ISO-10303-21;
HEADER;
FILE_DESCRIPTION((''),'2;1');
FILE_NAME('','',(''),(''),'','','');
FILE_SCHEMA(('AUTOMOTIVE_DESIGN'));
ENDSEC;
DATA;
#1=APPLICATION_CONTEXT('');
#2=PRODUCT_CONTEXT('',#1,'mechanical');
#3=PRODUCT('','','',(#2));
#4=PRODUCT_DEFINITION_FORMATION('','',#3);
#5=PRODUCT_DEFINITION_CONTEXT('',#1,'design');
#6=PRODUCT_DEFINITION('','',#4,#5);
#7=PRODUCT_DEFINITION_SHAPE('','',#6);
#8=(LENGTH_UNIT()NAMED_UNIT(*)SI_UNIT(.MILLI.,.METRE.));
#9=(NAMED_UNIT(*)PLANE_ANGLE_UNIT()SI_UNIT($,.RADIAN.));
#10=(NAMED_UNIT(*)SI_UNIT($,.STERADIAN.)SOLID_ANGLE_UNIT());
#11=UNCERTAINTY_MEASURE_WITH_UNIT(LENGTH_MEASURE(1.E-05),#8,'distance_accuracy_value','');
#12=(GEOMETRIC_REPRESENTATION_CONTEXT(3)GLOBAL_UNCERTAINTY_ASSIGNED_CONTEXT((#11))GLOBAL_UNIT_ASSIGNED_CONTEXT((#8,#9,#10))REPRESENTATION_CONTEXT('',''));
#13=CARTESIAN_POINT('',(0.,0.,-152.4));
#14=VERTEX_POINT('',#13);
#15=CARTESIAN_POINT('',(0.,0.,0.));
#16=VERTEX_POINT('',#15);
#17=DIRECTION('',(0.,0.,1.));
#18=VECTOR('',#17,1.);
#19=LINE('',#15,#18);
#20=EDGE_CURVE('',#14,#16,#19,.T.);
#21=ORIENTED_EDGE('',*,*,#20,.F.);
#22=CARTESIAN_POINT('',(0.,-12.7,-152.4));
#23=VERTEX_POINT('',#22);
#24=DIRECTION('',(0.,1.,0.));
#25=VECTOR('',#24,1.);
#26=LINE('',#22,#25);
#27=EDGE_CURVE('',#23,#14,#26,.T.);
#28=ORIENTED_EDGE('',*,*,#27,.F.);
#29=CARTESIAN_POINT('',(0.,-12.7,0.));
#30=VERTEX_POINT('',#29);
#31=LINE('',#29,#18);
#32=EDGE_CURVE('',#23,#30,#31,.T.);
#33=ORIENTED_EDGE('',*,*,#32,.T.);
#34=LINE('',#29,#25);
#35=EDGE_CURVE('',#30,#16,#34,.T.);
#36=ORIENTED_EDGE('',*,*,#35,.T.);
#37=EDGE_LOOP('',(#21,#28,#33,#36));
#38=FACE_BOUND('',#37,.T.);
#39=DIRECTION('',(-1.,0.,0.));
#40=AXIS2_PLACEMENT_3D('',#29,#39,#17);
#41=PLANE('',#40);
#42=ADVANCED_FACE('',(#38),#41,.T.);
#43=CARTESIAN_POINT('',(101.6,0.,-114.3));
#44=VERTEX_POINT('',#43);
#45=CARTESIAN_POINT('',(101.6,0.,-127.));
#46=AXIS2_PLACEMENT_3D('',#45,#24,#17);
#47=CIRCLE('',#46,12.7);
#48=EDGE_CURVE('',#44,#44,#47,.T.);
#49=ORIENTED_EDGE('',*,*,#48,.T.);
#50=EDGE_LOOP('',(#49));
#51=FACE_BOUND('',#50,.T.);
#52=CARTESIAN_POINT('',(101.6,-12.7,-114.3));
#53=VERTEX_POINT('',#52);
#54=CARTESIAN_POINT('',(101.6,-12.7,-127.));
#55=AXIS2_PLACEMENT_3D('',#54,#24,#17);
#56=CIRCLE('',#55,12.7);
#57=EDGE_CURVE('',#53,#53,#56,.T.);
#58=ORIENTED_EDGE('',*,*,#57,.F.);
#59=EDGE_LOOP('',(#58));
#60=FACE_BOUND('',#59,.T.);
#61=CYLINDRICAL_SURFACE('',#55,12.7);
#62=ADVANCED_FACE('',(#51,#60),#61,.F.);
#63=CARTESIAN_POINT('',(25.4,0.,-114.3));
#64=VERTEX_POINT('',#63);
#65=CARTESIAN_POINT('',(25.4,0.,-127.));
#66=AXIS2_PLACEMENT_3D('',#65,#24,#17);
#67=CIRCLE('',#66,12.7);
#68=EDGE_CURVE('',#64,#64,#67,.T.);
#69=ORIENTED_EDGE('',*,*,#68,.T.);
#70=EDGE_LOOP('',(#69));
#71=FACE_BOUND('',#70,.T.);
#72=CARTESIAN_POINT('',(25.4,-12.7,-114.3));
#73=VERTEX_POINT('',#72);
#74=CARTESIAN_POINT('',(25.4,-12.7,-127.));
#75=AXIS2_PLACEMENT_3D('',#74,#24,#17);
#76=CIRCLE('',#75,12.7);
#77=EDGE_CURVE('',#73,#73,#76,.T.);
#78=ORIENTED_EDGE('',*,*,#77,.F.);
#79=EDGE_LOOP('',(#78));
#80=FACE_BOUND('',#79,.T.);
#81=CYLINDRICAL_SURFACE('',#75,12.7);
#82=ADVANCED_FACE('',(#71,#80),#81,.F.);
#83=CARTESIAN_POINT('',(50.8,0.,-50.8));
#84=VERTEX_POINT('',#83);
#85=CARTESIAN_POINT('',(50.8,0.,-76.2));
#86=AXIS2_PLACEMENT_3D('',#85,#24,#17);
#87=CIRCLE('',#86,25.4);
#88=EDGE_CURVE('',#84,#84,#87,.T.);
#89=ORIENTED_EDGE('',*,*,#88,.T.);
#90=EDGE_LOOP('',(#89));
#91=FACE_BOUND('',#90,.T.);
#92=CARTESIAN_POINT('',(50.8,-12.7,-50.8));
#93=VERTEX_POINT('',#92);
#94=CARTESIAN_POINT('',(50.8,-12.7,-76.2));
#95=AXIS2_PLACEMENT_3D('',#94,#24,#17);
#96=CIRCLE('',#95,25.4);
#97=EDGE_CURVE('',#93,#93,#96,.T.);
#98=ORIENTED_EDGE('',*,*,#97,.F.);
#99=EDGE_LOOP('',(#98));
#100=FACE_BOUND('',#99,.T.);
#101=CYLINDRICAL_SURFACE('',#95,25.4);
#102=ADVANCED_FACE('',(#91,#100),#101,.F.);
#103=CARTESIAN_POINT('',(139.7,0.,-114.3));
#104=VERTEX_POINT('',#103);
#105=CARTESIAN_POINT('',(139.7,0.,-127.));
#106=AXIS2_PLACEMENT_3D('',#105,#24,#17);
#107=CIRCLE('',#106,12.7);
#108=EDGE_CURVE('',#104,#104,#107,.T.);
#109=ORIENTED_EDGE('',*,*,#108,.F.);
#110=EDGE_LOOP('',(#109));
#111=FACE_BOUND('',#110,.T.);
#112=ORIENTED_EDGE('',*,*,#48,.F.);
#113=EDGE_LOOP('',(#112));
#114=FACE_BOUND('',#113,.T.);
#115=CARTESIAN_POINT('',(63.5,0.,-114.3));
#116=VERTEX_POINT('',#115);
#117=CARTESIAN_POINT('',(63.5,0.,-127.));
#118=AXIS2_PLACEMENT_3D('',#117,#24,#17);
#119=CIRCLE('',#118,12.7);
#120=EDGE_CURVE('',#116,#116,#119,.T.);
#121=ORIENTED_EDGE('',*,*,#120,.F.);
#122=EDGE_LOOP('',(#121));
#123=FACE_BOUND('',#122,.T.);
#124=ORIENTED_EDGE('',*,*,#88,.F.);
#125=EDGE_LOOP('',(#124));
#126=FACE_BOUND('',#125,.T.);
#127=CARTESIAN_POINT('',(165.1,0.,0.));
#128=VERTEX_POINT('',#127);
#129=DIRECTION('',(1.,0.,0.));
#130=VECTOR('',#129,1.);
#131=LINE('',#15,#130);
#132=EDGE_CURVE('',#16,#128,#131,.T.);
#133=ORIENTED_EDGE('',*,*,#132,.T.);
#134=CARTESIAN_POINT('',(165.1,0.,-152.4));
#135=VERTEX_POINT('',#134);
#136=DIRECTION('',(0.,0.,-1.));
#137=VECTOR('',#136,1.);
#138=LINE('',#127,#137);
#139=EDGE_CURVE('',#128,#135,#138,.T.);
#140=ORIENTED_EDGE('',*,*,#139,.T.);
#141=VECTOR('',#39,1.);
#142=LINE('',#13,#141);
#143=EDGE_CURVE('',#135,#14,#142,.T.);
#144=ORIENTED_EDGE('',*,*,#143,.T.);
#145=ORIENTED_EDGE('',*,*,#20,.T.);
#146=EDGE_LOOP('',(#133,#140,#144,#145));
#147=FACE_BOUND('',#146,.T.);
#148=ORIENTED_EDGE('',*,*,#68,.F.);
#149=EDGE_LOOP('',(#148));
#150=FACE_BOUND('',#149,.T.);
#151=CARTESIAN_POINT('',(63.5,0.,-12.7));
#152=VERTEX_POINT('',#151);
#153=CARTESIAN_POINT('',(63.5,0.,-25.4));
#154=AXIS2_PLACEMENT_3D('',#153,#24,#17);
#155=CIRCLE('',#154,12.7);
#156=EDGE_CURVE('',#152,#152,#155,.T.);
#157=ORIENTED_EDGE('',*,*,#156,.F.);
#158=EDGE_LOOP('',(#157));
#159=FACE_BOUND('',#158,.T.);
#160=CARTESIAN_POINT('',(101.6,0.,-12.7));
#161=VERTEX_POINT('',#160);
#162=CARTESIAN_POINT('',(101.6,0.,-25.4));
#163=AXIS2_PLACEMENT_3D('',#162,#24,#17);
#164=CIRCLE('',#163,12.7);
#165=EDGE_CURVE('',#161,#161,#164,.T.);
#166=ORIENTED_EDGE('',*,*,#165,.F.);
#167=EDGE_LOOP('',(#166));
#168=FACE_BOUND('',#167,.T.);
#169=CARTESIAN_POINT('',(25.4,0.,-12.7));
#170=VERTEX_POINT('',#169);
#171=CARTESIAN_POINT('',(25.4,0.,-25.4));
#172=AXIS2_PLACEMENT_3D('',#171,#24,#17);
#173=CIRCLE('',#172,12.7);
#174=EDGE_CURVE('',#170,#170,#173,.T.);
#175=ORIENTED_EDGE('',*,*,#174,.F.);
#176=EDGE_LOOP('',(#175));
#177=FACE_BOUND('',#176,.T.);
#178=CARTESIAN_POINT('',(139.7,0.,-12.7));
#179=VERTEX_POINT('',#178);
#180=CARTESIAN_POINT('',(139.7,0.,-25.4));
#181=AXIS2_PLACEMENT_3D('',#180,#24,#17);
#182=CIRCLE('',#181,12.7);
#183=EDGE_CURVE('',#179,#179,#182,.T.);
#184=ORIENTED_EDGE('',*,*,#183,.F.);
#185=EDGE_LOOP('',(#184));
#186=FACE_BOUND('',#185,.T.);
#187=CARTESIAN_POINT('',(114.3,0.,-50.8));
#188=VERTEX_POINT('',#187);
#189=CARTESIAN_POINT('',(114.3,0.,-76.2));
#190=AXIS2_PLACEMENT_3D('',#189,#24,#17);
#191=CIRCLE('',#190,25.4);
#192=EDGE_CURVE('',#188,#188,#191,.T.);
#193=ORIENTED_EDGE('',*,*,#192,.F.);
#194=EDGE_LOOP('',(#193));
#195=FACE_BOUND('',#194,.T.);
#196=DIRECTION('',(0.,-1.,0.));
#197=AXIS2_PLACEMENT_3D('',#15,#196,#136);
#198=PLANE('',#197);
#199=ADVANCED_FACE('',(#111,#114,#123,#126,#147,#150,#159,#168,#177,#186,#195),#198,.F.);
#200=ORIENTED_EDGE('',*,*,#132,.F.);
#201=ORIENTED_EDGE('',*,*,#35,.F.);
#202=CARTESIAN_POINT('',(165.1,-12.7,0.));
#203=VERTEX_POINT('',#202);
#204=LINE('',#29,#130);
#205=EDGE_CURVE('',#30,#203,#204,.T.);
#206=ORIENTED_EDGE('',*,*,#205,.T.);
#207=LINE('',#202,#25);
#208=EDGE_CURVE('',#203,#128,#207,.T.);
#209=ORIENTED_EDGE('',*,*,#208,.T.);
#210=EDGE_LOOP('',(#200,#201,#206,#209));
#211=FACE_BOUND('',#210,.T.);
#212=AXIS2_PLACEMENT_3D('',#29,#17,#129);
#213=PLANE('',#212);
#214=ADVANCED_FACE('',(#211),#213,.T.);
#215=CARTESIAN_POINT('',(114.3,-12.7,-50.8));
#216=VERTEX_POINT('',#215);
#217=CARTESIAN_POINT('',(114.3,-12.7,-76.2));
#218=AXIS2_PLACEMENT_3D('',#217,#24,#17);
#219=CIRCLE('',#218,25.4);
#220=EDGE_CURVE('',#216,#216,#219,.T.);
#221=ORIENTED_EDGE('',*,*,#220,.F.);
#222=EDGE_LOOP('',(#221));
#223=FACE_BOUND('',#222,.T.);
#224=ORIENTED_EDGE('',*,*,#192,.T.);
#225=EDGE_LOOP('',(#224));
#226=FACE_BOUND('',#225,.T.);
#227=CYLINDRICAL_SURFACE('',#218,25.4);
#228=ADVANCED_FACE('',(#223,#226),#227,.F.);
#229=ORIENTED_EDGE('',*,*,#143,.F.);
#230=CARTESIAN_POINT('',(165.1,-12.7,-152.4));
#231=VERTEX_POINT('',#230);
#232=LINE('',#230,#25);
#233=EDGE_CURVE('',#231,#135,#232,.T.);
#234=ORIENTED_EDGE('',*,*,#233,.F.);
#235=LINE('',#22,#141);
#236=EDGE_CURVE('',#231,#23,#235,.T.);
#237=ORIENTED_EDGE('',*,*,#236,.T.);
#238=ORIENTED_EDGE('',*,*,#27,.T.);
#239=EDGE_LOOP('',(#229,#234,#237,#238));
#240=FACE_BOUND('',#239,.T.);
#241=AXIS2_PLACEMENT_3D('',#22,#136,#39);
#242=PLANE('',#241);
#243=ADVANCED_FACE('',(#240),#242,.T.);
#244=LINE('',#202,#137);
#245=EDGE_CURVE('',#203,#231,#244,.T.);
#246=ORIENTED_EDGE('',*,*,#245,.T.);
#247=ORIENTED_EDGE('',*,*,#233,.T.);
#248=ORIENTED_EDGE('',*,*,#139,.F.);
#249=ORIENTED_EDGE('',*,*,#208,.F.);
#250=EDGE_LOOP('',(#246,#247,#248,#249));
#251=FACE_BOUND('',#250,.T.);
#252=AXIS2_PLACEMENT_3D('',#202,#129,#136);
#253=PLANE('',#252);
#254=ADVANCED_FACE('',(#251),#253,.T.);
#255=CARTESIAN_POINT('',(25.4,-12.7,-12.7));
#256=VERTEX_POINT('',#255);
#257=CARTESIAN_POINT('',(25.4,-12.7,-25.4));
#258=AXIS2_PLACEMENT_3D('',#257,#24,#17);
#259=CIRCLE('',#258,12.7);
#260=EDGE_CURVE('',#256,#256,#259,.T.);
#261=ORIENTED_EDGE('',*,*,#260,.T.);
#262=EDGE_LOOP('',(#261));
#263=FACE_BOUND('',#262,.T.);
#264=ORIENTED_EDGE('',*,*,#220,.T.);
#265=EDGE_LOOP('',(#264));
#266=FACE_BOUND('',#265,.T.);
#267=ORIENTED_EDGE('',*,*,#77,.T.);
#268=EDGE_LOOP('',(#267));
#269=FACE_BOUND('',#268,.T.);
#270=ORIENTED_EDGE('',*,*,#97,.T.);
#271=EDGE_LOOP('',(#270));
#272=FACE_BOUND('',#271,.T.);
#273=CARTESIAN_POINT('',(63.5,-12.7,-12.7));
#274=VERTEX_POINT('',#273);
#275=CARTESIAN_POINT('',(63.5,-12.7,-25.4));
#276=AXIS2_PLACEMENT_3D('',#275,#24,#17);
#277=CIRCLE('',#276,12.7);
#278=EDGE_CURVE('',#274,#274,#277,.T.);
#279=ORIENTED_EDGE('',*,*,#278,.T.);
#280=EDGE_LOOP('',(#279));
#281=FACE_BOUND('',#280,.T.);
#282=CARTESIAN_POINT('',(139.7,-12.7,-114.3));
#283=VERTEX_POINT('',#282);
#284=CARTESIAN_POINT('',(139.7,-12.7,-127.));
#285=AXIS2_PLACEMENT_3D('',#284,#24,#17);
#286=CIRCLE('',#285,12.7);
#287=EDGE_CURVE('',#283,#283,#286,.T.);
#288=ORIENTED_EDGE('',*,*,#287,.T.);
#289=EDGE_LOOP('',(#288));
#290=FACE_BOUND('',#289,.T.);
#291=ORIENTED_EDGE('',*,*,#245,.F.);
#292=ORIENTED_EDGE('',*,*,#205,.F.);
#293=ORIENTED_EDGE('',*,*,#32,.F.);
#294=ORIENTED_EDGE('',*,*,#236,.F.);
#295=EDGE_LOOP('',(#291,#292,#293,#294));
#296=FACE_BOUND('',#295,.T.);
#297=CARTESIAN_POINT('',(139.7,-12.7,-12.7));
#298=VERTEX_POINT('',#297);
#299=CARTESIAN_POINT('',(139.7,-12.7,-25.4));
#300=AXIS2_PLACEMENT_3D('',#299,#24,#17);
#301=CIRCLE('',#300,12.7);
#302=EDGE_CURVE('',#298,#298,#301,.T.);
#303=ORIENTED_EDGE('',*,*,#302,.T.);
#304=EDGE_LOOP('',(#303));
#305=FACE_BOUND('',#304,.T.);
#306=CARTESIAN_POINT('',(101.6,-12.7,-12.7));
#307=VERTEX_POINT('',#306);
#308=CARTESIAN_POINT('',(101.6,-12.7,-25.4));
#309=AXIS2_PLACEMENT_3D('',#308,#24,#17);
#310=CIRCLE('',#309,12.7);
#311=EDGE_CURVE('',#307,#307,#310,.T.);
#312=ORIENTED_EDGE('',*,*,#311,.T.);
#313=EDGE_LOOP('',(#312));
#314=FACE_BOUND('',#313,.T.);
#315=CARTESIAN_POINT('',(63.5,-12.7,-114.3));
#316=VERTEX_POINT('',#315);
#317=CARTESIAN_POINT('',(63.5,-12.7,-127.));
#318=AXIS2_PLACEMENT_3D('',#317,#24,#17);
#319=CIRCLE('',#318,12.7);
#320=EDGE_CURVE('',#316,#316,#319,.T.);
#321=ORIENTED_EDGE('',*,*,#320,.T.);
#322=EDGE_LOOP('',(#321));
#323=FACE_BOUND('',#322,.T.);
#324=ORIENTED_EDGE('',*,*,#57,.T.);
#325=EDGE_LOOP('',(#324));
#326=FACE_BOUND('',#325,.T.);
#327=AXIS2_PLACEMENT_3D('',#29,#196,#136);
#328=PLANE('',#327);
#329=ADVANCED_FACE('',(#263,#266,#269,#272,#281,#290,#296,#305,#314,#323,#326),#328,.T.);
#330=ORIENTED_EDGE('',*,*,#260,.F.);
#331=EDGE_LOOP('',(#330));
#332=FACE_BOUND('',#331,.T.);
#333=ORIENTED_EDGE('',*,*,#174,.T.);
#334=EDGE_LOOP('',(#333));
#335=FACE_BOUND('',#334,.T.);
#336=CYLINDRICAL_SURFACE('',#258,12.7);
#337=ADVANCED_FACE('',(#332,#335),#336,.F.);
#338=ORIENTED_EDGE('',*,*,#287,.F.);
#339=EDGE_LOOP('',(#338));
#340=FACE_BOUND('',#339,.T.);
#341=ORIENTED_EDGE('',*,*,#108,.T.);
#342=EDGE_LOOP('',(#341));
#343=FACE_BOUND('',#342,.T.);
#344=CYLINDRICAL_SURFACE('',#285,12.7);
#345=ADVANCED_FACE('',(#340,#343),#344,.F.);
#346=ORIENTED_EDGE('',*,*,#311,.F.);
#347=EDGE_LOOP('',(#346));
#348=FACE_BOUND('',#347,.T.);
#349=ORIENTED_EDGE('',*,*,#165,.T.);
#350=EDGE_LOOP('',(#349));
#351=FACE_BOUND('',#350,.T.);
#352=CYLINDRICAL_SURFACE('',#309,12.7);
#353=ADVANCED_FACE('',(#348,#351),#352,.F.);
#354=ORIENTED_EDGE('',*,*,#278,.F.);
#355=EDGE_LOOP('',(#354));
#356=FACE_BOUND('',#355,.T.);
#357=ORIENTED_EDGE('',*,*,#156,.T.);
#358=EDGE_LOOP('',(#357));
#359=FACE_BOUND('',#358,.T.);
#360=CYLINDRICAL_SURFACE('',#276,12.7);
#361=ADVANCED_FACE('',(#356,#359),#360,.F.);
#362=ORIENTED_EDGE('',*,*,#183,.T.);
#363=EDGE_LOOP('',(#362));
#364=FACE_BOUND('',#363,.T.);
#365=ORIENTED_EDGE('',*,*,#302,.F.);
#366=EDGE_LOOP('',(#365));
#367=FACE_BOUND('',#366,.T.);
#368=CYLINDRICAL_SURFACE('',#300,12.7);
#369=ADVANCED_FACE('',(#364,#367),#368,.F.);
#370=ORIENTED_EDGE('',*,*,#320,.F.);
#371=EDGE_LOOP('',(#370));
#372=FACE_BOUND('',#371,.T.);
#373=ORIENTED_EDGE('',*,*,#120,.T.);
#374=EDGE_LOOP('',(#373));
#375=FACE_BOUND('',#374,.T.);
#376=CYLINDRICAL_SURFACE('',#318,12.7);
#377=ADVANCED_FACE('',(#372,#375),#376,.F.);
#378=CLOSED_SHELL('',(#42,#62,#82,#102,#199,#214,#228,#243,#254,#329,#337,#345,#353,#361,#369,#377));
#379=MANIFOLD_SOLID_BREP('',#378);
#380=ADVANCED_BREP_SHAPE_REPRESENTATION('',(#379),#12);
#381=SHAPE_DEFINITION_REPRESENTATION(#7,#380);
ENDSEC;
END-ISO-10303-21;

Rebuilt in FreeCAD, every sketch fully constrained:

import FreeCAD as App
import Part
import Sketcher
Q = App.Units.Quantity

doc = App.newDocument("Part")
params = doc.addObject("Spreadsheet::Sheet", "Params")
for row, (alias, value) in enumerate([
    ("sketch1_height", "6 in"),
    ("sketch1_width", "6.5 in"),
    ("pad1_length", "0.5 in"),
    ("sketch2_diameter", "1 in"),
    ("pocket1_length", "0.5 in"),
    ("sketch3_diameter", "2 in"),
    ("pocket2_length", "0.5 in"),
], start=1):
    params.set(f"A{row}", alias)
    params.set(f"B{row}", "=" + value)
    params.setAlias(f"B{row}", alias)

body = doc.addObject("PartDesign::Body", "Body")

sketch1 = doc.addObject("Sketcher::SketchObject", "Sketch")
body.addObject(sketch1)
sketch1.AttachmentSupport = (doc.XZ_Plane, [""])
sketch1.MapMode = "FlatFace"
sketch1.addGeometry([
    Part.LineSegment(App.Vector(0, -152, 0), App.Vector(0, 0, 0)),
    Part.LineSegment(App.Vector(0, 0, 0), App.Vector(165, 0, 0)),
    Part.LineSegment(App.Vector(165, 0, 0), App.Vector(165, -152, 0)),
    Part.LineSegment(App.Vector(165, -152, 0), App.Vector(0, -152, 0)),
], False)
sketch1.addConstraint([
    Sketcher.Constraint("Coincident", 0, 2, 1, 1),
    Sketcher.Constraint("Coincident", 1, 2, 2, 1),
    Sketcher.Constraint("Coincident", 2, 2, 3, 1),
    Sketcher.Constraint("Coincident", 3, 2, 0, 1),
    Sketcher.Constraint("Vertical", 0),
    Sketcher.Constraint("Horizontal", 1),
    Sketcher.Constraint("Vertical", 2),
    Sketcher.Constraint("Horizontal", 3),
    Sketcher.Constraint("Coincident", 0, 2, -1, 1),
    Sketcher.Constraint("DistanceY", 0, 1, 0, 2, Q("6 in")),
    Sketcher.Constraint("DistanceX", 1, 1, 1, 2, Q("6.5 in")),
])
sketch1.setExpression("Constraints[9]", "Params.sketch1_height")
sketch1.setExpression("Constraints[10]", "Params.sketch1_width")
pad1 = doc.addObject("PartDesign::Pad", "Pad")
body.addObject(pad1)
pad1.Profile = sketch1
pad1.setExpression("Length", "Params.pad1_length")

sketch2 = doc.addObject("Sketcher::SketchObject", "Sketch001")
body.addObject(sketch2)
sketch2.AttachmentSupport = (doc.XZ_Plane, [""])
sketch2.MapMode = "FlatFace"
sketch2.addGeometry([
    Part.Circle(App.Vector(25, -127, 0), App.Vector(0, 0, 1), 13),
    Part.Circle(App.Vector(64, -127, 0), App.Vector(0, 0, 1), 13),
    Part.Circle(App.Vector(102, -127, 0), App.Vector(0, 0, 1), 13),
    Part.Circle(App.Vector(140, -127, 0), App.Vector(0, 0, 1), 13),
    Part.Circle(App.Vector(64, -25, 0), App.Vector(0, 0, 1), 13),
    Part.Circle(App.Vector(102, -25, 0), App.Vector(0, 0, 1), 13),
    Part.Circle(App.Vector(140, -25, 0), App.Vector(0, 0, 1), 13),
    Part.Circle(App.Vector(25, -25, 0), App.Vector(0, 0, 1), 13),
], False)
sketch2.addConstraint([
    Sketcher.Constraint("Equal", 0, 1),
    Sketcher.Constraint("Equal", 1, 2),
    Sketcher.Constraint("Equal", 2, 3),
    Sketcher.Constraint("Equal", 3, 4),
    Sketcher.Constraint("Equal", 4, 5),
    Sketcher.Constraint("Equal", 5, 6),
    Sketcher.Constraint("Equal", 6, 7),
    Sketcher.Constraint("Horizontal", 0, 3, 1, 3),
    Sketcher.Constraint("Horizontal", 1, 3, 2, 3),
    Sketcher.Constraint("Horizontal", 2, 3, 3, 3),
    Sketcher.Constraint("Horizontal", 4, 3, 5, 3),
    Sketcher.Constraint("Horizontal", 5, 3, 6, 3),
    Sketcher.Constraint("Horizontal", 6, 3, 7, 3),
    Sketcher.Constraint("Vertical", 1, 3, 4, 3),
    Sketcher.Constraint("Vertical", 2, 3, 5, 3),
    Sketcher.Constraint("Vertical", 3, 3, 6, 3),
    Sketcher.Constraint("Vertical", 0, 3, 7, 3),
    Sketcher.Constraint("Diameter", 0, Q("1 in")),
    Sketcher.Constraint("DistanceX", -1, 1, 0, 3, Q("1 in")),
    Sketcher.Constraint("DistanceY", 0, 3, -1, 1, Q("5 in")),
    Sketcher.Constraint("DistanceX", -1, 1, 2, 3, Q("4 in")),
    Sketcher.Constraint("DistanceY", 4, 3, -1, 1, Q("1 in")),
    Sketcher.Constraint("DistanceX", 1, 3, 3, 3, Q("3 in")),
    Sketcher.Constraint("DistanceX", -1, 1, 1, 3, Q("2.5 in")),
])
sketch2.setExpression("Constraints[17]", "Params.sketch2_diameter")
pocket1 = doc.addObject("PartDesign::Pocket", "Pocket")
body.addObject(pocket1)
pocket1.Profile = sketch2
pocket1.setExpression("Length", "Params.pocket1_length")
pocket1.Reversed = True

sketch3 = doc.addObject("Sketcher::SketchObject", "Sketch002")
body.addObject(sketch3)
sketch3.AttachmentSupport = (doc.XZ_Plane, [""])
sketch3.MapMode = "FlatFace"
sketch3.addGeometry([
    Part.Circle(App.Vector(51, -76, 0), App.Vector(0, 0, 1), 25),
    Part.Circle(App.Vector(114, -76, 0), App.Vector(0, 0, 1), 25),
], False)
sketch3.addConstraint([
    Sketcher.Constraint("Equal", 0, 1),
    Sketcher.Constraint("Horizontal", 0, 3, 1, 3),
    Sketcher.Constraint("Diameter", 0, Q("2 in")),
    Sketcher.Constraint("DistanceX", -1, 1, 0, 3, Q("2 in")),
    Sketcher.Constraint("DistanceY", 0, 3, -1, 1, Q("3 in")),
    Sketcher.Constraint("DistanceX", -1, 1, 1, 3, Q("4.5 in")),
])
sketch3.setExpression("Constraints[2]", "Params.sketch3_diameter")
pocket2 = doc.addObject("PartDesign::Pocket", "Pocket001")
body.addObject(pocket2)
pocket2.Profile = sketch3
pocket2.setExpression("Length", "Params.pocket2_length")
pocket2.Reversed = True

doc.recompute()
